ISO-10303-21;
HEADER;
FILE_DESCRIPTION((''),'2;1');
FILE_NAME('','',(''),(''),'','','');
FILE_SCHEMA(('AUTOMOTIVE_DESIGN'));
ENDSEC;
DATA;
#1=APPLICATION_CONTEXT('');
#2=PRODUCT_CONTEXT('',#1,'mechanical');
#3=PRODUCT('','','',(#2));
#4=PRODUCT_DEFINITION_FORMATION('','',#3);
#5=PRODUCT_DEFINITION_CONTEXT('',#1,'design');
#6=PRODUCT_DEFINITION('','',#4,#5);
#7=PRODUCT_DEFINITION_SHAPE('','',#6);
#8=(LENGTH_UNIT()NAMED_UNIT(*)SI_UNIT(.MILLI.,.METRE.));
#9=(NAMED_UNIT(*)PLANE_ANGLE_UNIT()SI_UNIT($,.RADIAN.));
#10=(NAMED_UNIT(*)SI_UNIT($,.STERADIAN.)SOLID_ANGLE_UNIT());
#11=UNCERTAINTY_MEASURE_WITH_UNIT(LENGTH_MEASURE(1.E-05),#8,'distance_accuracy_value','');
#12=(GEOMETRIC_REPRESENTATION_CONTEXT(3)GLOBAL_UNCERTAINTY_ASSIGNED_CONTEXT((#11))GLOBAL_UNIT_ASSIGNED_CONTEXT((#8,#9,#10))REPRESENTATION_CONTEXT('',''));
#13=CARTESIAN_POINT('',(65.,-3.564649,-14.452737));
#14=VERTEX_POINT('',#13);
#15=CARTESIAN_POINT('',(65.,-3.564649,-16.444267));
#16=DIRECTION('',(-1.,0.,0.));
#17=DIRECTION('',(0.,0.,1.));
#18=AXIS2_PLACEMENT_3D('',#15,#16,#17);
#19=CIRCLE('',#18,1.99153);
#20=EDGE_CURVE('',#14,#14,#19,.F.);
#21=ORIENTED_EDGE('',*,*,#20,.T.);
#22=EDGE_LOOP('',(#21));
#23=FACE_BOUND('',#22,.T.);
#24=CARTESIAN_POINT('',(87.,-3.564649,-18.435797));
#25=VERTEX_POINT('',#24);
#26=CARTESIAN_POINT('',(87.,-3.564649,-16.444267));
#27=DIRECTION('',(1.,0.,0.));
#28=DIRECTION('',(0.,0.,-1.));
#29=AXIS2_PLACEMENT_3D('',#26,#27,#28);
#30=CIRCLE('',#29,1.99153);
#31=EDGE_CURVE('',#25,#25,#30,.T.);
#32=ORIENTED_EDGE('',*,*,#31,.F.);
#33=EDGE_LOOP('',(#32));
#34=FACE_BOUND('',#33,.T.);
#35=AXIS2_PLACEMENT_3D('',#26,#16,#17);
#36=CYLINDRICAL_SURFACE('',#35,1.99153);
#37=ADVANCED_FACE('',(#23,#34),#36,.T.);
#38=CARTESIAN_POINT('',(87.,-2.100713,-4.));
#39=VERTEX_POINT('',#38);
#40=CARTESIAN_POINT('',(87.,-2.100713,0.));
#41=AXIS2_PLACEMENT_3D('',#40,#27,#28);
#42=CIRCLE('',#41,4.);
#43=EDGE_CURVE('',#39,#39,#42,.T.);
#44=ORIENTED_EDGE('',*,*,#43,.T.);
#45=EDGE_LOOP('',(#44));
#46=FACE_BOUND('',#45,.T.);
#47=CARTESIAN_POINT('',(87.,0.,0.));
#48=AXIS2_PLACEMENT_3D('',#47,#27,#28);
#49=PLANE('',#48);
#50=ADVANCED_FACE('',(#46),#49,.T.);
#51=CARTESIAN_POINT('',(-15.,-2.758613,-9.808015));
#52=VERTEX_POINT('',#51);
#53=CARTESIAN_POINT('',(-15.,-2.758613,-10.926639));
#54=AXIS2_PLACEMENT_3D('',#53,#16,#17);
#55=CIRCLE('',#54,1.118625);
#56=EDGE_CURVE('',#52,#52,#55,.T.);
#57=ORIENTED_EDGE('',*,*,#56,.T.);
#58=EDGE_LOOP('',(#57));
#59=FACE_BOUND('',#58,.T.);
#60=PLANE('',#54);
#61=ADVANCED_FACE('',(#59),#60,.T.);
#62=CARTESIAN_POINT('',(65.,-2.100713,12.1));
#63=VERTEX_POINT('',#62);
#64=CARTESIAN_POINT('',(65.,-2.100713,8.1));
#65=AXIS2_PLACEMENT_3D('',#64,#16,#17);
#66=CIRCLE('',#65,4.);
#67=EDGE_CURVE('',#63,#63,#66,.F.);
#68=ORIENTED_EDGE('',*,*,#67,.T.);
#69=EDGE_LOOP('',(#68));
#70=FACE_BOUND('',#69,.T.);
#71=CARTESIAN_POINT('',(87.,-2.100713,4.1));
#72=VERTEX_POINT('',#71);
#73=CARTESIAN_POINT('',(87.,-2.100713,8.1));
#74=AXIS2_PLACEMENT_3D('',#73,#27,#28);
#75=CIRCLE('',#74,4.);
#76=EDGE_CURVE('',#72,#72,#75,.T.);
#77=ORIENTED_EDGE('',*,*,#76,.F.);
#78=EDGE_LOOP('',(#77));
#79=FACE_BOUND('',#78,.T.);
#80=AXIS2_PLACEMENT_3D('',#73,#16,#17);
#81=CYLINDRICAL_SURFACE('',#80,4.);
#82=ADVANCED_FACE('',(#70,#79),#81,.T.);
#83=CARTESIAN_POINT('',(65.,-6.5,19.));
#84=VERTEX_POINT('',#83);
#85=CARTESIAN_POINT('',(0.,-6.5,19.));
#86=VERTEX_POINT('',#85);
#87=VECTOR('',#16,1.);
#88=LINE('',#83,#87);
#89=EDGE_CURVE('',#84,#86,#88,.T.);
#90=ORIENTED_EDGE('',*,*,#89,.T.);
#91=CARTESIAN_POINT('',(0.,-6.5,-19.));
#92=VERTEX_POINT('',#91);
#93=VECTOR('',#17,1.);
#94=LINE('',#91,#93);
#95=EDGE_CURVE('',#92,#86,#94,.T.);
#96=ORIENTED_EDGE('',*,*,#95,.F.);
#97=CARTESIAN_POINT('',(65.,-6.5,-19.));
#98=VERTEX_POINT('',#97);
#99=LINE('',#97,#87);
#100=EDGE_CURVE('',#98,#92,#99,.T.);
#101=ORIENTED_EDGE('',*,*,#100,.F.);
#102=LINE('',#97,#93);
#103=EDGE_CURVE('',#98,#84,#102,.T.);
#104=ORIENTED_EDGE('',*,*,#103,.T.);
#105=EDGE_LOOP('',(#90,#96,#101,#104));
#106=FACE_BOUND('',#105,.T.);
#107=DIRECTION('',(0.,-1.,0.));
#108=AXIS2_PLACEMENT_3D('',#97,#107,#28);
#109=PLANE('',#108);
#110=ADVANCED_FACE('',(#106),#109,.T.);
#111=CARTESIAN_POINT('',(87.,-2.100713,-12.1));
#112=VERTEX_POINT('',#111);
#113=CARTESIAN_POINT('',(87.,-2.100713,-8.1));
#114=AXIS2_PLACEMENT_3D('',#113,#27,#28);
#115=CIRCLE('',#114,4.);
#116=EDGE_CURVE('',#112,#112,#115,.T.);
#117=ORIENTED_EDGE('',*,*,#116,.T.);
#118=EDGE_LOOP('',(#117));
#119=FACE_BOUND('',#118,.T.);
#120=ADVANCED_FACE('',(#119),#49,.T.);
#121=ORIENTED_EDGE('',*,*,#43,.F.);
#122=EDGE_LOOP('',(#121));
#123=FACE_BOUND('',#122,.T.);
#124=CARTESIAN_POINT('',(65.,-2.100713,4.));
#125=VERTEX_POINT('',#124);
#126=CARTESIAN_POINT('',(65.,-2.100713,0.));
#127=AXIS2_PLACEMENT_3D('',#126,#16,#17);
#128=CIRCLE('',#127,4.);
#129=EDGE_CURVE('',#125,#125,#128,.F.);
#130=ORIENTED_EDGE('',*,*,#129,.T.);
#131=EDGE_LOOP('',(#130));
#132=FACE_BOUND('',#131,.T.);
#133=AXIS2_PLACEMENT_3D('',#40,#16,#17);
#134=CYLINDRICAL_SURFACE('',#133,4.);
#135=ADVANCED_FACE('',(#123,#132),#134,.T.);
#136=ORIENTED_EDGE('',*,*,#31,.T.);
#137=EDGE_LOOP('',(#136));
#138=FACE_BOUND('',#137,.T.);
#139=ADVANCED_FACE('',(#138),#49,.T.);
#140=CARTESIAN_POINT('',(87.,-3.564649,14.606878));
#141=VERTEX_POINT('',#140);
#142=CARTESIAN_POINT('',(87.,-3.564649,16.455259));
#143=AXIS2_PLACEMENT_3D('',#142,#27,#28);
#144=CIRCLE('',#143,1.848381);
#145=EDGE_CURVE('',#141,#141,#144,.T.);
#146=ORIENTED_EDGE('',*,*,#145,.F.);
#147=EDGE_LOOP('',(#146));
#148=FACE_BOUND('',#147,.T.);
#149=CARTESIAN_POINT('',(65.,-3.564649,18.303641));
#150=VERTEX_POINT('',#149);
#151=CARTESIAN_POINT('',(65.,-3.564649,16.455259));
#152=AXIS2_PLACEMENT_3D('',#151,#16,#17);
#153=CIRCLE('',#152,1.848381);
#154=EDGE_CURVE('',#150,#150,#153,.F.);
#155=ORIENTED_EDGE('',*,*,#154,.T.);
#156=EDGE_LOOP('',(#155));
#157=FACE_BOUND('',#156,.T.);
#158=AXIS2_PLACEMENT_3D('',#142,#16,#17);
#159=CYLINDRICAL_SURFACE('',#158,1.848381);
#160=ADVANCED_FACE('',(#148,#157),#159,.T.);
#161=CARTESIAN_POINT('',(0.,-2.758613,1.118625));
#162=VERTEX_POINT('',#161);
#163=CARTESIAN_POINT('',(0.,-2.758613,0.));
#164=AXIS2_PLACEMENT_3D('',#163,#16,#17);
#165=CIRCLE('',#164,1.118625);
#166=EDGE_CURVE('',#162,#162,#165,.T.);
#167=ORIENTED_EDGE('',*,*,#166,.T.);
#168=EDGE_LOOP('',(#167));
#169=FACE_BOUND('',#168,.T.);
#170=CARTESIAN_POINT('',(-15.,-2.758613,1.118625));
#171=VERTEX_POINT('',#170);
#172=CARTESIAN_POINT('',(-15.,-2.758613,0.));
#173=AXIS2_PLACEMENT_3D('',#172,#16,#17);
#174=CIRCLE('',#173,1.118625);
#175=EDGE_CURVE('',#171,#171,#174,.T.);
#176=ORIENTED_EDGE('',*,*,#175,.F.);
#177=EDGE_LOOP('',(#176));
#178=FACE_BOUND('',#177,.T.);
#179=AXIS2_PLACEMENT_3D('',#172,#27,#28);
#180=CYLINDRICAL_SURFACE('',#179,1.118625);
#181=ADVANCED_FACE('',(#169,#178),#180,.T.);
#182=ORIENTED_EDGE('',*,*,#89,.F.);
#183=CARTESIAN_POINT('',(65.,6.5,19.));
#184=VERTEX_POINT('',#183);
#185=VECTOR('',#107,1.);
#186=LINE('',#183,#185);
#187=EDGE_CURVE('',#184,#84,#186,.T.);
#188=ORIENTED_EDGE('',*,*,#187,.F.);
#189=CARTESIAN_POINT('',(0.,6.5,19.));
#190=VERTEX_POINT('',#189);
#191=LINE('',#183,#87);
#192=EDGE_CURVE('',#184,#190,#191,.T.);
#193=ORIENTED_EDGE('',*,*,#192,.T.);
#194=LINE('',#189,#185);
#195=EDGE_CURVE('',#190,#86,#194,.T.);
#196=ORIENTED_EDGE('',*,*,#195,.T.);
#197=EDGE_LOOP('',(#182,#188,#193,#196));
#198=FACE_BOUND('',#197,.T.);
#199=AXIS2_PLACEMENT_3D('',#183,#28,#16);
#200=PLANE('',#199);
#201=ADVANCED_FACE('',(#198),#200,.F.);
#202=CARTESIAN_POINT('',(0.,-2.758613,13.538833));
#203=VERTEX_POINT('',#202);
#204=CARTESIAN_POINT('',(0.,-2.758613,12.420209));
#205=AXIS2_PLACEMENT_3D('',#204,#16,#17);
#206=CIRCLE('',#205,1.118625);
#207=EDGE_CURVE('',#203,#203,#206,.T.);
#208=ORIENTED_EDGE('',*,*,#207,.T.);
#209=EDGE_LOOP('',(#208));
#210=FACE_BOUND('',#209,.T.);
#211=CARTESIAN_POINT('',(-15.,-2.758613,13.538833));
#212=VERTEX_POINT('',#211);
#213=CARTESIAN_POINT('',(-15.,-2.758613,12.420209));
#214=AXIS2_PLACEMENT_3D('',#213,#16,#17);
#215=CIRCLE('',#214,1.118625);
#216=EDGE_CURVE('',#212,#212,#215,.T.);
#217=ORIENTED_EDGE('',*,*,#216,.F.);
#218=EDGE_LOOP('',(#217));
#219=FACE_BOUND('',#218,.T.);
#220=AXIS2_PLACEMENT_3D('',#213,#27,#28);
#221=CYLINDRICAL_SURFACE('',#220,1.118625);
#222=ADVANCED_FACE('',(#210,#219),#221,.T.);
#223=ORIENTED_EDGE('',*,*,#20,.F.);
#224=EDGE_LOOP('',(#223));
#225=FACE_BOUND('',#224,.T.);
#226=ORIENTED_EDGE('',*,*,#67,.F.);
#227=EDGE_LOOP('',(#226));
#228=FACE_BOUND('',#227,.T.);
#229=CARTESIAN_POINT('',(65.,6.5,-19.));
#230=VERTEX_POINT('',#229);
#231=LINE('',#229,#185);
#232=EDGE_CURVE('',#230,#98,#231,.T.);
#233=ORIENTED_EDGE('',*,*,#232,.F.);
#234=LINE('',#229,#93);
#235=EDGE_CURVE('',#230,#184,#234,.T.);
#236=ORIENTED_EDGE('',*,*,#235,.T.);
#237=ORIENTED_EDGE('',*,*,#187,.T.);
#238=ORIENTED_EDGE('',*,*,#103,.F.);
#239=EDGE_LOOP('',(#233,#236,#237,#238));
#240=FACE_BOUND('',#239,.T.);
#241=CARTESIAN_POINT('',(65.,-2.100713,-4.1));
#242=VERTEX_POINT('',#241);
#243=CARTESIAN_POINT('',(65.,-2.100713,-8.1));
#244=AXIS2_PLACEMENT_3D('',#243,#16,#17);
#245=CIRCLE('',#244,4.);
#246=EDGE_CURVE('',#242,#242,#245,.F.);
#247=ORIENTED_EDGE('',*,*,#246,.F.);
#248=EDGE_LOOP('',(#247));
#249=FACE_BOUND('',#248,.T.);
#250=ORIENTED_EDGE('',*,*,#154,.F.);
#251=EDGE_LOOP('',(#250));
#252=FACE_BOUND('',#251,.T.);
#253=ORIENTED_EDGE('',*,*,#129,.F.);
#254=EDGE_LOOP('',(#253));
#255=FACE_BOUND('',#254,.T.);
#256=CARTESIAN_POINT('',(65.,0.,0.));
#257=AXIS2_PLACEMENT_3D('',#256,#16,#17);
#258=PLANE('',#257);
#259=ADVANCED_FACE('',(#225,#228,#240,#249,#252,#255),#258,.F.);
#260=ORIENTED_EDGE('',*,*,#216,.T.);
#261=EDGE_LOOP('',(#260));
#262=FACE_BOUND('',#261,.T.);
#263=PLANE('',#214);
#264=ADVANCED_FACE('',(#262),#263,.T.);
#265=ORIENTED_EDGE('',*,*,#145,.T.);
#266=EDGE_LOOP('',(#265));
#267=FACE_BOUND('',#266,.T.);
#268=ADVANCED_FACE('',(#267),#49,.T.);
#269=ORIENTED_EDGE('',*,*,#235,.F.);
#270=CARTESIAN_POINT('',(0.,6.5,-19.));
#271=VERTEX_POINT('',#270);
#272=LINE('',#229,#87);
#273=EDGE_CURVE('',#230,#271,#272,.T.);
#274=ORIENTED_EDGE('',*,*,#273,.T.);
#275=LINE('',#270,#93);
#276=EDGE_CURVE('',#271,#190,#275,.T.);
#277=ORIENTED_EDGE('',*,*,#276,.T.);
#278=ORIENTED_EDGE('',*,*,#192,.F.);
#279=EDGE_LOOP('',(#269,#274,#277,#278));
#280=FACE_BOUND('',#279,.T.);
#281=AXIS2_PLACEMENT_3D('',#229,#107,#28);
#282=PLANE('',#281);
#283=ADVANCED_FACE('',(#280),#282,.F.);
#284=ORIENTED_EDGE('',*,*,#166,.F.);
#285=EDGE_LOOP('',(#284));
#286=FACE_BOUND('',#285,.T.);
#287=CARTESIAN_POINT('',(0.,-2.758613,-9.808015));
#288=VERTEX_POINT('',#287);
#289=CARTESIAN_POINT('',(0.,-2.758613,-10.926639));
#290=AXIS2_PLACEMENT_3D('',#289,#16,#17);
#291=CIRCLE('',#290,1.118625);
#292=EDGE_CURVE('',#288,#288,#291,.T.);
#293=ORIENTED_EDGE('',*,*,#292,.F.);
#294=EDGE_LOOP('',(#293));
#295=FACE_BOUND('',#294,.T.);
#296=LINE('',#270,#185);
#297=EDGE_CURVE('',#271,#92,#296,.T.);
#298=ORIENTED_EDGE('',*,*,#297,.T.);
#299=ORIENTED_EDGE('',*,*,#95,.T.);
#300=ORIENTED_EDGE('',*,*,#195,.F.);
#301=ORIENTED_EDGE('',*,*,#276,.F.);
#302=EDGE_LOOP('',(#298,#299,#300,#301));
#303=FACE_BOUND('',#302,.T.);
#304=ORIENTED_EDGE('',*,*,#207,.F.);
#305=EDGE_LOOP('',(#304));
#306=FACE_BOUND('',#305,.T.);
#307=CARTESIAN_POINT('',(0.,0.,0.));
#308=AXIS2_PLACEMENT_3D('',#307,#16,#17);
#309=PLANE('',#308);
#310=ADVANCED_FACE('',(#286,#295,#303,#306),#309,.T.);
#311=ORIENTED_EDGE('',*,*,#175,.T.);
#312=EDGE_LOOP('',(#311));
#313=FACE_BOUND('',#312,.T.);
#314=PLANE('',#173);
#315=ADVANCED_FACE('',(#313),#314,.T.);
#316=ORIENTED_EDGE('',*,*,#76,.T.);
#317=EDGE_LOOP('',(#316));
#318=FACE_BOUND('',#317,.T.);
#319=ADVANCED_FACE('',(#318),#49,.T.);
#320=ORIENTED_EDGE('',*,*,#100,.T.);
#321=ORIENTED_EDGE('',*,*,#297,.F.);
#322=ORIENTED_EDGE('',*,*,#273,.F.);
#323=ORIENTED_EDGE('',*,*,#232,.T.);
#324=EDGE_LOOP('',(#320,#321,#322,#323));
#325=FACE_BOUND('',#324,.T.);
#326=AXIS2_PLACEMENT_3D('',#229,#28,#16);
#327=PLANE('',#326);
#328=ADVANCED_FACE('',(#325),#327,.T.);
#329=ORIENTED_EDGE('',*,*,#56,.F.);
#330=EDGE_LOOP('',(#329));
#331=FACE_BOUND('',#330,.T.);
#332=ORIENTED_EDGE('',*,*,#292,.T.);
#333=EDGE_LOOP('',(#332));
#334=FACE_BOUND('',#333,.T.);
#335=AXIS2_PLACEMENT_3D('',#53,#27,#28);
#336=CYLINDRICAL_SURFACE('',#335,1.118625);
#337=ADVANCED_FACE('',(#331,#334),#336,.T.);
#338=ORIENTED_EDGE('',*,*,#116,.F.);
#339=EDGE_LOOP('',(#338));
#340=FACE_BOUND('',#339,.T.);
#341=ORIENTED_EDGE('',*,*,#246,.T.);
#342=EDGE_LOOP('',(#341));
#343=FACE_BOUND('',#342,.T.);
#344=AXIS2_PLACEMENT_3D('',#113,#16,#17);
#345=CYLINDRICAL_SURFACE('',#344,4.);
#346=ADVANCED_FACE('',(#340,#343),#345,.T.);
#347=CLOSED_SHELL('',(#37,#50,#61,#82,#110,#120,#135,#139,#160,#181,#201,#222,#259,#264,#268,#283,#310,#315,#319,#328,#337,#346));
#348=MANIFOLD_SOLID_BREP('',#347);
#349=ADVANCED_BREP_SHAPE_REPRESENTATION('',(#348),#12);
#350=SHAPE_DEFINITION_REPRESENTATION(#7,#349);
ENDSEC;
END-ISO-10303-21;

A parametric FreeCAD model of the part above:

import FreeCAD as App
import Part
import Sketcher
from FreeCAD import Vector


def add_polygon(sketch, points):
    """Adds a closed chain of lines whose ends are joined by coincident constraints."""
    first, n = sketch.GeometryCount, len(points)
    for a, b in zip(points, points[1:] + points[:1]):
        sketch.addGeometry(Part.LineSegment(App.Vector(*a, 0), App.Vector(*b, 0)), False)
    for i in range(n):
        sketch.addConstraint(Sketcher.Constraint("Coincident", first + i, 2, first + (i + 1) % n, 1))

doc = App.newDocument("Part")
body = doc.addObject("PartDesign::Body", "Body")

# Sketch on YZ plane
sketch1 = body.newObject("Sketcher::SketchObject", "Sketch")
sketch1.AttachmentSupport = (doc.getObject("YZ_Plane"), [""])
sketch1.MapMode = "FlatFace"
add_polygon(sketch1, [(6, 19), (-6, 19), (-6, -19), (6, -19)])  # lines 0-3
sketch1.addConstraint(Sketcher.Constraint("Horizontal", 0))
sketch1.addConstraint(Sketcher.Constraint("Vertical", 1))
sketch1.addConstraint(Sketcher.Constraint("Horizontal", 2))
sketch1.addConstraint(Sketcher.Constraint("Vertical", 3))
sketch1.addConstraint(Sketcher.Constraint("Symmetric", 0, 2, 2, 2, -1, 1))
sketch1.addConstraint(Sketcher.Constraint("DistanceX", 0, 2, 0, 1, 13.0))
sketch1.addConstraint(Sketcher.Constraint("DistanceY", 1, 2, 1, 1, 38.0))
pad1 = body.newObject("PartDesign::Pad", "Pad")
pad1.Profile = sketch1
pad1.Length = 65

# Sketch on YZ plane
sketch2 = body.newObject("Sketcher::SketchObject", "Sketch001")
sketch2.AttachmentSupport = (doc.getObject("YZ_Plane"), [""])
sketch2.MapMode = "FlatFace"
sketch2.AttachmentOffset = App.Placement(Vector(0, 0, 65), App.Rotation())
sketch2.addGeometry(Part.Circle(Vector(-3.6, 16.5, 0), Vector(0, 0, 1), 1.8), False)
sketch2.addGeometry(Part.Circle(Vector(-2.1, 8.1, 0), Vector(0, 0, 1), 4), False)
sketch2.addGeometry(Part.Circle(Vector(-2.1, 0, 0), Vector(0, 0, 1), 4), False)
sketch2.addGeometry(Part.Circle(Vector(-2.1, -8.1, 0), Vector(0, 0, 1), 4), False)
sketch2.addGeometry(Part.Circle(Vector(-3.6, -16.4, 0), Vector(0, 0, 1), 2), False)
sketch2.addConstraint(Sketcher.Constraint("Equal", 1, 2))
sketch2.addConstraint(Sketcher.Constraint("Equal", 2, 3))
sketch2.addConstraint(Sketcher.Constraint("Symmetric", 1, 3, 3, 3, -1))
sketch2.addConstraint(Sketcher.Constraint("PointOnObject", 2, 3, -1))
sketch2.addConstraint(Sketcher.Constraint("Vertical", 1, 3, 2, 3))
sketch2.addConstraint(Sketcher.Constraint("Vertical", 0, 3, 4, 3))
sketch2.addConstraint(Sketcher.Constraint("Diameter", 1, 8.0))
sketch2.addConstraint(Sketcher.Constraint("DistanceY", -1, 1, 1, 3, 8.1))
sketch2.addConstraint(Sketcher.Constraint("Diameter", 4, 3.98306))
sketch2.addConstraint(Sketcher.Constraint("Diameter", 0, 3.696763))
sketch2.addConstraint(Sketcher.Constraint("DistanceX", 0, 3, -1, 1, 3.564649))
sketch2.addConstraint(Sketcher.Constraint("DistanceY", -1, 1, 0, 3, 16.455259))
sketch2.addConstraint(Sketcher.Constraint("DistanceX", 1, 3, -1, 1, 2.100713))
sketch2.addConstraint(Sketcher.Constraint("DistanceY", 4, 3, -1, 1, 16.444267))
pad2 = body.newObject("PartDesign::Pad", "Pad001")
pad2.Profile = sketch2
pad2.Length = 22

# Sketch on YZ plane
sketch3 = body.newObject("Sketcher::SketchObject", "Sketch002")
sketch3.AttachmentSupport = (doc.getObject("YZ_Plane"), [""])
sketch3.MapMode = "FlatFace"
sketch3.addGeometry(Part.Circle(Vector(-2.8, -10.9, 0), Vector(0, 0, 1), 1.1), False)
sketch3.addGeometry(Part.Circle(Vector(-2.8, 0, 0), Vector(0, 0, 1), 1.1), False)
sketch3.addGeometry(Part.Circle(Vector(-2.8, 12.4, 0), Vector(0, 0, 1), 1.1), False)
sketch3.addConstraint(Sketcher.Constraint("Equal", 0, 1))
sketch3.addConstraint(Sketcher.Constraint("Equal", 1, 2))
sketch3.addConstraint(Sketcher.Constraint("PointOnObject", 1, 3, -1))
sketch3.addConstraint(Sketcher.Constraint("Vertical", 0, 3, 1, 3))
sketch3.addConstraint(Sketcher.Constraint("Vertical", 1, 3, 2, 3))
sketch3.addConstraint(Sketcher.Constraint("Diameter", 0, 2.237249))
sketch3.addConstraint(Sketcher.Constraint("DistanceY", 0, 3, -1, 1, 10.926639))
sketch3.addConstraint(Sketcher.Constraint("DistanceY", -1, 1, 2, 3, 12.420209))
sketch3.addConstraint(Sketcher.Constraint("DistanceX", 0, 3, -1, 1, 2.758613))
pad3 = body.newObject("PartDesign::Pad", "Pad002")
pad3.Profile = sketch3
pad3.Length = 15
pad3.Reversed = True

doc.recompute()
